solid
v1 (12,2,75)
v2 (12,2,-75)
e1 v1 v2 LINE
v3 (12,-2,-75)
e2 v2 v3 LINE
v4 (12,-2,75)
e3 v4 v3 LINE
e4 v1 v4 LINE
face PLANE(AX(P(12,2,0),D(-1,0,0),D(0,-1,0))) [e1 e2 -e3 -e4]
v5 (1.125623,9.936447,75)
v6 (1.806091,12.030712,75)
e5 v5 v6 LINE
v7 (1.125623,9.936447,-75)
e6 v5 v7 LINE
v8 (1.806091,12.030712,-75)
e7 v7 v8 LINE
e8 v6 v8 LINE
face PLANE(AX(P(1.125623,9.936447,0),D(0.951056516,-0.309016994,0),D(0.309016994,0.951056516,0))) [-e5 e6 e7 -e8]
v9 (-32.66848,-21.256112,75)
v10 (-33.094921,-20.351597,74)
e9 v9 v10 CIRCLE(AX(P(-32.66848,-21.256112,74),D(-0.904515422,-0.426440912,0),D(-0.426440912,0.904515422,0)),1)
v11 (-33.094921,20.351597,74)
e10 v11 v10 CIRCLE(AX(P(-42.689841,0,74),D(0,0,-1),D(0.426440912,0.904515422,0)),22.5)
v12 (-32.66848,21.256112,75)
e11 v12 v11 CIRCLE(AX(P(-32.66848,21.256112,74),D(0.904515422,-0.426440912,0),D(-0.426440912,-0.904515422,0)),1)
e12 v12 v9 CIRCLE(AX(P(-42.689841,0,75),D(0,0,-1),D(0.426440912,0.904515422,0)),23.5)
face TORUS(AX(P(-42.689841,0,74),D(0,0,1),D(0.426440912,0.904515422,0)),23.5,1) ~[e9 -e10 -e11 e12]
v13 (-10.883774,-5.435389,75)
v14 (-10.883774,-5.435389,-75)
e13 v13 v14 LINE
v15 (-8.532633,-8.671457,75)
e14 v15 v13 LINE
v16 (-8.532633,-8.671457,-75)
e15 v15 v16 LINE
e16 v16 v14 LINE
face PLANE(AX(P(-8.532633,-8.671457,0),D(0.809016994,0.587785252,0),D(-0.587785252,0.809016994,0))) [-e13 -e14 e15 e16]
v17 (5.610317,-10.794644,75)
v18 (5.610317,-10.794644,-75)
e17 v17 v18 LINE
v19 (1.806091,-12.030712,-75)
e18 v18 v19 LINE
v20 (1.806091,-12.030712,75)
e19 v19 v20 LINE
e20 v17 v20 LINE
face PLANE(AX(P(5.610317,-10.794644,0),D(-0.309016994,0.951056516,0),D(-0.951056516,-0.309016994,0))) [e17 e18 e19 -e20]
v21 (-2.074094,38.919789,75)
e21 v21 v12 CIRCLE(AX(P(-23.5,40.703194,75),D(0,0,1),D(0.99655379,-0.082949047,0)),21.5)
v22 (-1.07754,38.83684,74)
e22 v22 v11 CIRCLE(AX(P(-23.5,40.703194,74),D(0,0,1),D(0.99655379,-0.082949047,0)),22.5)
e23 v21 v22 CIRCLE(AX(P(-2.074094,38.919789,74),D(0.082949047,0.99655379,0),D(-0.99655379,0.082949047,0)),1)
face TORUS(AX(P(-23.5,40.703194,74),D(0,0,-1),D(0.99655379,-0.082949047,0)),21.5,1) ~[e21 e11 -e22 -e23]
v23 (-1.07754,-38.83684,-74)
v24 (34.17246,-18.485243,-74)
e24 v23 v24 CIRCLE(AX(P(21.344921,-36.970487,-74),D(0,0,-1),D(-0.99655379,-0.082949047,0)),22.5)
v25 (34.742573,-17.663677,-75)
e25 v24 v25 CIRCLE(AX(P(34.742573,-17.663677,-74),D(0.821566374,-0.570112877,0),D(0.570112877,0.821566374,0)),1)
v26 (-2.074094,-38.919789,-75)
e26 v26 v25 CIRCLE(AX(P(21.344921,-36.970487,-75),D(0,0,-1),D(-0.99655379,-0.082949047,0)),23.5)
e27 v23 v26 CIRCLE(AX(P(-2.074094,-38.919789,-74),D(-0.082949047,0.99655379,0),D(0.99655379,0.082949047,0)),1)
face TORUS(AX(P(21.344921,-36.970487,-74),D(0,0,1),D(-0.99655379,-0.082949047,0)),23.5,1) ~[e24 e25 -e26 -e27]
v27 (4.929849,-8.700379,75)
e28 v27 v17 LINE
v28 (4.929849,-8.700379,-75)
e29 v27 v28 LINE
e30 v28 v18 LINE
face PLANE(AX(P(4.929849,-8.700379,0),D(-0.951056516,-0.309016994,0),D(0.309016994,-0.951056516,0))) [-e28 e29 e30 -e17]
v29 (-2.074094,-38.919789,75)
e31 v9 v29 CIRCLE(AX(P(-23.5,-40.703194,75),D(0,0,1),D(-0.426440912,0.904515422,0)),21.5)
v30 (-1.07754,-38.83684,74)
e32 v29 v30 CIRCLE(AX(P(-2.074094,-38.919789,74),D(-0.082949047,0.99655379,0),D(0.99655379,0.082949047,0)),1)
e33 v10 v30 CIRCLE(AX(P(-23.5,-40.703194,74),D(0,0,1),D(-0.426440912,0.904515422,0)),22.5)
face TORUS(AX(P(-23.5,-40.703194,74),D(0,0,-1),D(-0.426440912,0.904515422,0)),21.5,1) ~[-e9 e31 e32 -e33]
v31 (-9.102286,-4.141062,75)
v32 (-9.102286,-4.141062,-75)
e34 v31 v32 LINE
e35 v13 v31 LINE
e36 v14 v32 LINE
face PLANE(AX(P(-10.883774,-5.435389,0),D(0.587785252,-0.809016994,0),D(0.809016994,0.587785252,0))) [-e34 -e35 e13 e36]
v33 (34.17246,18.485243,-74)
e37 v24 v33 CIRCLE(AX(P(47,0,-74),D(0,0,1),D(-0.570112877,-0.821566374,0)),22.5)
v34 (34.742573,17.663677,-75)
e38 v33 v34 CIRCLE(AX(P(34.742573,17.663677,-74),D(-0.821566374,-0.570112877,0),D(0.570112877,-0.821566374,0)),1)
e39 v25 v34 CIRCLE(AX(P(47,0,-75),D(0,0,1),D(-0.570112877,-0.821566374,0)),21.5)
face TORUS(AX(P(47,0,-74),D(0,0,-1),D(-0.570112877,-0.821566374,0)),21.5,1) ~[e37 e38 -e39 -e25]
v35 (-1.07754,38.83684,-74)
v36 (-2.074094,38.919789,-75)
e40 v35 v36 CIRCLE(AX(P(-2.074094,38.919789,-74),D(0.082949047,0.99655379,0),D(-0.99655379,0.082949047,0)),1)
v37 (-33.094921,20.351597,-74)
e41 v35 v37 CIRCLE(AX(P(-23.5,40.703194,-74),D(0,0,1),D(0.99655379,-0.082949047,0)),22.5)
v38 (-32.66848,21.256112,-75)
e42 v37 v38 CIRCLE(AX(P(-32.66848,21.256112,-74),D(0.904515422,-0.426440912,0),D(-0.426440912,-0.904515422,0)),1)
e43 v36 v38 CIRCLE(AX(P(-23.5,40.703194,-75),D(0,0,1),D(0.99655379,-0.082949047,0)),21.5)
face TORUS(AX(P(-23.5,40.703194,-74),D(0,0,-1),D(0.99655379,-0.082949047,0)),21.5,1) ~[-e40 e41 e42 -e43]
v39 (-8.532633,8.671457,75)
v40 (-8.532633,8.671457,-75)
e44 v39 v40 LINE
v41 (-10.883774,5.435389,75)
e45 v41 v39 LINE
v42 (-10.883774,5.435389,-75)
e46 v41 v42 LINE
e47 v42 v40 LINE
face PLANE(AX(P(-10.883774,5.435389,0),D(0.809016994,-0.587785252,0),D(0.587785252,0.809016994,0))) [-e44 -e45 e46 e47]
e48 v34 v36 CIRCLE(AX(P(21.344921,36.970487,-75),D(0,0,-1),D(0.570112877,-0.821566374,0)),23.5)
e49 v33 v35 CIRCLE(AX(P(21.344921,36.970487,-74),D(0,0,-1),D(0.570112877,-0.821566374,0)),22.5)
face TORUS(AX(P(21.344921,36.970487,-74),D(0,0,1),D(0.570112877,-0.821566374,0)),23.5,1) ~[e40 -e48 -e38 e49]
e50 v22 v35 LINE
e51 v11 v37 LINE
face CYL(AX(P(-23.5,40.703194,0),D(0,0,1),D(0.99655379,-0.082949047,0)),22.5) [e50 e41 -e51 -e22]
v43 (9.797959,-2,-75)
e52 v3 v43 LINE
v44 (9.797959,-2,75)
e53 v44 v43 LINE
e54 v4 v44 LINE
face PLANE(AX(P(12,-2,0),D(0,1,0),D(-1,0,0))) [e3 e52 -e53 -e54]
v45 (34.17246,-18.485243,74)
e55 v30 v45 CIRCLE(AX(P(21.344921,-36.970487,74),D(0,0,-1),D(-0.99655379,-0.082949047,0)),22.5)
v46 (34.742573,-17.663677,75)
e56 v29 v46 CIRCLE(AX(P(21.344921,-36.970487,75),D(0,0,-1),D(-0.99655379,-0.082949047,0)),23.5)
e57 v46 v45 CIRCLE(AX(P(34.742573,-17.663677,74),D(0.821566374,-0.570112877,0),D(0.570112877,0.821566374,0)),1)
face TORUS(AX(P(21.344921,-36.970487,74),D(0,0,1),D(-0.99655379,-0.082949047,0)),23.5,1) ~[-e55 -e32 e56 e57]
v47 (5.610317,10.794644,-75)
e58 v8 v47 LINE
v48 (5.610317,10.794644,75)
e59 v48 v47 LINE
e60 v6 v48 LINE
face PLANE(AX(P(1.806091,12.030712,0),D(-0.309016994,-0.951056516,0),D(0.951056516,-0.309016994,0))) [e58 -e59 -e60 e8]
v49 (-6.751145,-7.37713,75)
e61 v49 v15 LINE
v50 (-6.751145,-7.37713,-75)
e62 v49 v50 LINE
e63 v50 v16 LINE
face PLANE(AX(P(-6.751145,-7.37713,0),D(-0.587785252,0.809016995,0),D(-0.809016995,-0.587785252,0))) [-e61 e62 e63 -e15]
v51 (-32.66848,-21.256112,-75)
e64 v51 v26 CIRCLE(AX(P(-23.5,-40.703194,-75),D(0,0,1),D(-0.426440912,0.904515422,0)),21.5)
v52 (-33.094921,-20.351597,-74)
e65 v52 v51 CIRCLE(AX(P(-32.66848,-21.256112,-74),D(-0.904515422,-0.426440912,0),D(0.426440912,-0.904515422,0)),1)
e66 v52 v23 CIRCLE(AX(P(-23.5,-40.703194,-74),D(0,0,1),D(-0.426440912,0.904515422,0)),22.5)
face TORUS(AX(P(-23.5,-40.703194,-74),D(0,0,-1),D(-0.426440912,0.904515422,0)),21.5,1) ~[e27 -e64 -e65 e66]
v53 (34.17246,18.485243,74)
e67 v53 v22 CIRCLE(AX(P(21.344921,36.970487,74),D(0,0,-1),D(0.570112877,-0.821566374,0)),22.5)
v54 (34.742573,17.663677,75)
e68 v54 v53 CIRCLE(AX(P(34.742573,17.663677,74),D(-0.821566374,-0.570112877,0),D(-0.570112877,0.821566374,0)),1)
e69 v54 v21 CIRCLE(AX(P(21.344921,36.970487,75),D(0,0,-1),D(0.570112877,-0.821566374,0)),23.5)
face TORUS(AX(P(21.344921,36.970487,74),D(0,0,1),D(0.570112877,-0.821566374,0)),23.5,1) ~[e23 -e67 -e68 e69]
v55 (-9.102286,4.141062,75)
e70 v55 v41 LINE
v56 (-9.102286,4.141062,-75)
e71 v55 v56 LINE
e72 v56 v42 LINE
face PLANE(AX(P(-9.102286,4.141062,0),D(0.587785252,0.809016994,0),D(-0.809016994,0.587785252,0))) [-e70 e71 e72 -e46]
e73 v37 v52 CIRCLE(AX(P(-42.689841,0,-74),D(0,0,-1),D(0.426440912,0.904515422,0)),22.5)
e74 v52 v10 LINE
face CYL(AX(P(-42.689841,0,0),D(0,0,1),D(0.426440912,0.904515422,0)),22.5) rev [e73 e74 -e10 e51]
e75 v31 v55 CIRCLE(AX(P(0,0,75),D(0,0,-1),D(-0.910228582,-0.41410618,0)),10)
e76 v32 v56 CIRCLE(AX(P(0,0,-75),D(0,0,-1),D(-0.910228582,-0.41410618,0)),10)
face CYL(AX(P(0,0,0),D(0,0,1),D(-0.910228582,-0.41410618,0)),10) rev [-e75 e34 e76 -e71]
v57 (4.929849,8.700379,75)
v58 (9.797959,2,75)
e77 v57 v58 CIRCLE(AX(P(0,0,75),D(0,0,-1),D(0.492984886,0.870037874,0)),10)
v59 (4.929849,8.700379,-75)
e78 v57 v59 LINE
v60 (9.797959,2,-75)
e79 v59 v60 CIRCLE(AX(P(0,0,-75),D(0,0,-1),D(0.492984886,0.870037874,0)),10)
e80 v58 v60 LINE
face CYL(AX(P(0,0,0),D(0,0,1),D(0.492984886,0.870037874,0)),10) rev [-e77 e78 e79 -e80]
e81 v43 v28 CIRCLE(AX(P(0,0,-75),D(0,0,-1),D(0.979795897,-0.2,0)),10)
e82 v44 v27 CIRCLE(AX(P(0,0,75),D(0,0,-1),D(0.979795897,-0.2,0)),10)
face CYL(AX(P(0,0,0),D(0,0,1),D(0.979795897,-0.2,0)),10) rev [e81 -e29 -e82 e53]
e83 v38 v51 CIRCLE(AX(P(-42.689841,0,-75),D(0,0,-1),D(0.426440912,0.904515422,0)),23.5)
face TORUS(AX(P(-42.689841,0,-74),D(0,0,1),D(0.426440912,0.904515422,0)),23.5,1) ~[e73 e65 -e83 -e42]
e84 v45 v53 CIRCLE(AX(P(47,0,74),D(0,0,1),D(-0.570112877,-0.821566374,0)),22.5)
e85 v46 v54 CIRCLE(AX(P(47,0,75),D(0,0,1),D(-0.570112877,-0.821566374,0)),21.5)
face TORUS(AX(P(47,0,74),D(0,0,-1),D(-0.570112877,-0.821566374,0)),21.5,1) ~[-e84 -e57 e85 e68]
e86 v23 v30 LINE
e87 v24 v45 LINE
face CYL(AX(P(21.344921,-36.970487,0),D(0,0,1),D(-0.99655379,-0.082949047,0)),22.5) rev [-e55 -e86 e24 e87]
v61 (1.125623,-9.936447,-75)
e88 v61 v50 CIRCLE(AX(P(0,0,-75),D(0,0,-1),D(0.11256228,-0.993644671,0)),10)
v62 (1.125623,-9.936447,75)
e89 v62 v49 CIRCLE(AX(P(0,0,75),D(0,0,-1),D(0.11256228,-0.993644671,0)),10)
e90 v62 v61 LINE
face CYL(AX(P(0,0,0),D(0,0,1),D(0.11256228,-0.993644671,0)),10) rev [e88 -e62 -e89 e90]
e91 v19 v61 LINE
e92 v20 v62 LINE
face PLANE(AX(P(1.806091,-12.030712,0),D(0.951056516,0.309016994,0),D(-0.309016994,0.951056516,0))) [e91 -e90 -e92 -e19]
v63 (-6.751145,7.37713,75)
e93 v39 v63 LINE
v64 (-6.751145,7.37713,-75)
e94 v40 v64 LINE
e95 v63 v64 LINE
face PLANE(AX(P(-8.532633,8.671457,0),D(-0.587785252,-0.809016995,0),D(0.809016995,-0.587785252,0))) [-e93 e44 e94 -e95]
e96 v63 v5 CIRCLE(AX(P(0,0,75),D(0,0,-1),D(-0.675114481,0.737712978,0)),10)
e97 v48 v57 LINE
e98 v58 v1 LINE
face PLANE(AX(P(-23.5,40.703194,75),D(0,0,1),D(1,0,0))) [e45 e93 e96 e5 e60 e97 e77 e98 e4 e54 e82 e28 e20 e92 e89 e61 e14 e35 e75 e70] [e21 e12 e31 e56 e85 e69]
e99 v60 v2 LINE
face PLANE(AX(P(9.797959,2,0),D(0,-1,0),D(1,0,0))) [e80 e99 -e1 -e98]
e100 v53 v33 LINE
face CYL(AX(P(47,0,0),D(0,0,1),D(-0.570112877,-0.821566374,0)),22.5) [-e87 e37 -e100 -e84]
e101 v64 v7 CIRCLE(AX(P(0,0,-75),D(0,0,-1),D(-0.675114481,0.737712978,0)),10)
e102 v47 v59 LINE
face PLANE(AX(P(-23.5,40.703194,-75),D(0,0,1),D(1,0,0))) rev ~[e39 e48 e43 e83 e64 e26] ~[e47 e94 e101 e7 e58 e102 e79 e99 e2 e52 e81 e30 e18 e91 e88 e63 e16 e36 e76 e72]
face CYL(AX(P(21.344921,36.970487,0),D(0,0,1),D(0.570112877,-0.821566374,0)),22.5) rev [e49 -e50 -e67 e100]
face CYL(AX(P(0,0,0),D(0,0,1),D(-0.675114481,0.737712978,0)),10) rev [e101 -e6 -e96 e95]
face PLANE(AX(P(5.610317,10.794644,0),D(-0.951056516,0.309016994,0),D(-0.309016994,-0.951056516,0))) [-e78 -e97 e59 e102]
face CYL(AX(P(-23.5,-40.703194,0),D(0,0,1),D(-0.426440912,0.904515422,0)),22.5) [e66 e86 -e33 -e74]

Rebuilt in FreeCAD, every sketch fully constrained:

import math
import FreeCAD as App
import Part
import Sketcher
Q = App.Units.Quantity


def edges_at(feature, points):
    """Names of the edges that pass closest to the given points."""
    edges = feature.Shape.Edges
    near = lambda p: min(range(len(edges)), key=lambda i: edges[i].distToShape(Part.Vertex(*p))[0])
    return sorted({f"Edge{near(p) + 1}" for p in points})

doc = App.newDocument("Part")
body = doc.addObject("PartDesign::Body", "Body")

sketch1 = body.newObject("Sketcher::SketchObject", "Sketch")
sketch1.AttachmentSupport = (doc.getObject("XY_Plane"), [""])
sketch1.MapMode = "FlatFace"
sketch1.addGeometry([
    Part.ArcOfCircle(Part.Circle(App.Vector(-42.7, 0, 0), App.Vector(0, 0, 1), 22.5), math.radians(-65), math.radians(65)),
    Part.ArcOfCircle(Part.Circle(App.Vector(-23.5, -40.7, 0), App.Vector(0, 0, 1), 22.5), math.radians(115), math.radians(365)),
    Part.ArcOfCircle(Part.Circle(App.Vector(21.3, -37, 0), App.Vector(0, 0, 1), 22.5), math.radians(55), math.radians(185)),
    Part.ArcOfCircle(Part.Circle(App.Vector(47, 0, 0), App.Vector(0, 0, 1), 22.5), math.radians(-125), math.radians(125)),
    Part.ArcOfCircle(Part.Circle(App.Vector(21.3, 37, 0), App.Vector(0, 0, 1), 22.5), math.radians(175), math.radians(305)),
    Part.ArcOfCircle(Part.Circle(App.Vector(-23.5, 40.7, 0), App.Vector(0, 0, 1), 22.5), math.radians(-5), math.radians(245)),
    Part.LineSegment(App.Vector(5.6, -10.8, 0), App.Vector(1.8, -12, 0)),
    Part.LineSegment(App.Vector(1.8, -12, 0), App.Vector(1.1, -9.9, 0)),
    Part.ArcOfCircle(Part.Circle(App.Vector(0, 0, 0), App.Vector(0, 0, 1), 10), math.radians(-132), math.radians(-84)),
    Part.LineSegment(App.Vector(-6.8, -7.4, 0), App.Vector(-8.5, -8.7, 0)),
    Part.LineSegment(App.Vector(-8.5, -8.7, 0), App.Vector(-10.9, -5.4, 0)),
    Part.LineSegment(App.Vector(-10.9, -5.4, 0), App.Vector(-9.1, -4.1, 0)),
    Part.ArcOfCircle(Part.Circle(App.Vector(0, 0, 0), App.Vector(0, 0, 1), 10), math.radians(156), math.radians(204)),
    Part.LineSegment(App.Vector(-9.1, 4.1, 0), App.Vector(-10.9, 5.4, 0)),
    Part.LineSegment(App.Vector(-10.9, 5.4, 0), App.Vector(-8.5, 8.7, 0)),
    Part.LineSegment(App.Vector(-8.5, 8.7, 0), App.Vector(-6.8, 7.4, 0)),
    Part.ArcOfCircle(Part.Circle(App.Vector(0, 0, 0), App.Vector(0, 0, 1), 10), math.radians(84), math.radians(132)),
    Part.LineSegment(App.Vector(1.1, 9.9, 0), App.Vector(1.8, 12, 0)),
    Part.LineSegment(App.Vector(1.8, 12, 0), App.Vector(5.6, 10.8, 0)),
    Part.LineSegment(App.Vector(5.6, 10.8, 0), App.Vector(4.9, 8.7, 0)),
    Part.ArcOfCircle(Part.Circle(App.Vector(0, 0, 0), App.Vector(0, 0, 1), 10), math.radians(12), math.radians(60)),
    Part.LineSegment(App.Vector(9.8, 2, 0), App.Vector(12, 2, 0)),
    Part.LineSegment(App.Vector(12, 2, 0), App.Vector(12, -2, 0)),
    Part.LineSegment(App.Vector(12, -2, 0), App.Vector(9.8, -2, 0)),
    Part.ArcOfCircle(Part.Circle(App.Vector(0, 0, 0), App.Vector(0, 0, 1), 10), math.radians(-60), math.radians(-12)),
    Part.LineSegment(App.Vector(4.9, -8.7, 0), App.Vector(5.6, -10.8, 0)),
], False)
sketch1.addConstraint([
    Sketcher.Constraint("Tangent", 0, 1, 1, 1),
    Sketcher.Constraint("Tangent", 1, 2, 2, 2),
    Sketcher.Constraint("Tangent", 2, 1, 3, 1),
    Sketcher.Constraint("Tangent", 3, 2, 4, 2),
    Sketcher.Constraint("Tangent", 4, 1, 5, 1),
    Sketcher.Constraint("Tangent", 5, 2, 0, 2),
    Sketcher.Constraint("Coincident", 6, 2, 7, 1),
    Sketcher.Constraint("Coincident", 7, 2, 8, 2),
    Sketcher.Constraint("Coincident", 8, 1, 9, 1),
    Sketcher.Constraint("Coincident", 9, 2, 10, 1),
    Sketcher.Constraint("Coincident", 10, 2, 11, 1),
    Sketcher.Constraint("Coincident", 11, 2, 12, 2),
    Sketcher.Constraint("Coincident", 12, 1, 13, 1),
    Sketcher.Constraint("Coincident", 13, 2, 14, 1),
    Sketcher.Constraint("Coincident", 14, 2, 15, 1),
    Sketcher.Constraint("Coincident", 15, 2, 16, 2),
    Sketcher.Constraint("Coincident", 16, 1, 17, 1),
    Sketcher.Constraint("Coincident", 17, 2, 18, 1),
    Sketcher.Constraint("Coincident", 18, 2, 19, 1),
    Sketcher.Constraint("Coincident", 19, 2, 20, 2),
    Sketcher.Constraint("Coincident", 20, 1, 21, 1),
    Sketcher.Constraint("Coincident", 21, 2, 22, 1),
    Sketcher.Constraint("Coincident", 22, 2, 23, 1),
    Sketcher.Constraint("Coincident", 23, 2, 24, 2),
    Sketcher.Constraint("Coincident", 24, 1, 25, 1),
    Sketcher.Constraint("Coincident", 25, 2, 6, 1),
    Sketcher.Constraint("Horizontal", 21),
    Sketcher.Constraint("Vertical", 22),
    Sketcher.Constraint("Horizontal", 23),
    Sketcher.Constraint("Coincident", 8, 3, -1, 1),
    Sketcher.Constraint("Coincident", 12, 3, -1, 1),
    Sketcher.Constraint("Coincident", 16, 3, -1, 1),
    Sketcher.Constraint("Coincident", 20, 3, -1, 1),
    Sketcher.Constraint("Coincident", 24, 3, -1, 1),
    Sketcher.Constraint("Equal", 0, 1),
    Sketcher.Constraint("Equal", 1, 2),
    Sketcher.Constraint("Equal", 2, 3),
    Sketcher.Constraint("Equal", 3, 4),
    Sketcher.Constraint("Equal", 4, 5),
    Sketcher.Constraint("Equal", 8, 12),
    Sketcher.Constraint("Equal", 12, 16),
    Sketcher.Constraint("Equal", 16, 20),
    Sketcher.Constraint("Equal", 20, 24),
    Sketcher.Constraint("Symmetric", 2, 3, 4, 3, -1),
    Sketcher.Constraint("Symmetric", 10, 2, 13, 2, -1),
    Sketcher.Constraint("Symmetric", 9, 2, 14, 2, -1),
    Sketcher.Constraint("Symmetric", 6, 2, 17, 2, -1),
    Sketcher.Constraint("Symmetric", 18, 2, 25, 2, -1),
    Sketcher.Constraint("PointOnObject", 0, 3, -1),
    Sketcher.Constraint("Perpendicular", 6, 7),
    Sketcher.Constraint("Perpendicular", 9, 10),
    Sketcher.Constraint("Perpendicular", 10, 11),
    Sketcher.Constraint("Perpendicular", 13, 14),
    Sketcher.Constraint("Perpendicular", 14, 15),
    Sketcher.Constraint("Perpendicular", 17, 18),
    Sketcher.Constraint("Perpendicular", 18, 19),
    Sketcher.Constraint("Parallel", 7, 25),
    Sketcher.Constraint("Vertical", 20, 1, 23, 2),
    Sketcher.Constraint("Equal", 7, 9),
    Sketcher.Constraint("Equal", 6, 10),
    Sketcher.Constraint("Equal", 9, 11),
    Sketcher.Constraint("Equal", 17, 19),
    Sketcher.Constraint("Radius", 8, 10.0),
    Sketcher.Constraint("Radius", 0, 22.5),
    Sketcher.Constraint("DistanceY", 22, 2, 22, 1, 4.0),
    Sketcher.Constraint("Angle", 6, Q("-162 deg")),
    Sketcher.Constraint("Angle", 9, Q("-144 deg")),
    Sketcher.Constraint("Distance", 6, 4.0),
    Sketcher.Constraint("DistanceX", -1, 1, 3, 3, 47.0),
    Sketcher.Constraint("DistanceX", -1, 1, 21, 2, 12.0),
    Sketcher.Constraint("DistanceX", 1, 3, -1, 1, 23.5),
    Sketcher.Constraint("Distance", 7, 2.202041),
    Sketcher.Constraint("DistanceX", 0, 3, -1, 1, 42.689841),
])
pad1 = body.newObject("PartDesign::Pad", "Pad")
pad1.Profile = sketch1
pad1.Length = 150
pad1.Midplane = True
doc.recompute()

fillet = body.newObject("PartDesign::Fillet", "Fillet")
fillet.Base = (pad1, edges_at(pad1, [
    (-34.75, -60.189, 75),
    (10.095, -17.485, 75),
    (69.5, 0, 75),
    (10.095, 17.485, 75),
    (10.095, 17.485, -75),
    (69.5, 0, -75),
    (10.095, -17.485, -75),
    (-34.75, -60.189, -75),
    (-20.19, 0, -75),
    (-34.75, 60.189, -75),
    (-34.75, 60.189, 75),
    (-20.19, 0, 75),
]))
fillet.Radius = 1

doc.recompute()
